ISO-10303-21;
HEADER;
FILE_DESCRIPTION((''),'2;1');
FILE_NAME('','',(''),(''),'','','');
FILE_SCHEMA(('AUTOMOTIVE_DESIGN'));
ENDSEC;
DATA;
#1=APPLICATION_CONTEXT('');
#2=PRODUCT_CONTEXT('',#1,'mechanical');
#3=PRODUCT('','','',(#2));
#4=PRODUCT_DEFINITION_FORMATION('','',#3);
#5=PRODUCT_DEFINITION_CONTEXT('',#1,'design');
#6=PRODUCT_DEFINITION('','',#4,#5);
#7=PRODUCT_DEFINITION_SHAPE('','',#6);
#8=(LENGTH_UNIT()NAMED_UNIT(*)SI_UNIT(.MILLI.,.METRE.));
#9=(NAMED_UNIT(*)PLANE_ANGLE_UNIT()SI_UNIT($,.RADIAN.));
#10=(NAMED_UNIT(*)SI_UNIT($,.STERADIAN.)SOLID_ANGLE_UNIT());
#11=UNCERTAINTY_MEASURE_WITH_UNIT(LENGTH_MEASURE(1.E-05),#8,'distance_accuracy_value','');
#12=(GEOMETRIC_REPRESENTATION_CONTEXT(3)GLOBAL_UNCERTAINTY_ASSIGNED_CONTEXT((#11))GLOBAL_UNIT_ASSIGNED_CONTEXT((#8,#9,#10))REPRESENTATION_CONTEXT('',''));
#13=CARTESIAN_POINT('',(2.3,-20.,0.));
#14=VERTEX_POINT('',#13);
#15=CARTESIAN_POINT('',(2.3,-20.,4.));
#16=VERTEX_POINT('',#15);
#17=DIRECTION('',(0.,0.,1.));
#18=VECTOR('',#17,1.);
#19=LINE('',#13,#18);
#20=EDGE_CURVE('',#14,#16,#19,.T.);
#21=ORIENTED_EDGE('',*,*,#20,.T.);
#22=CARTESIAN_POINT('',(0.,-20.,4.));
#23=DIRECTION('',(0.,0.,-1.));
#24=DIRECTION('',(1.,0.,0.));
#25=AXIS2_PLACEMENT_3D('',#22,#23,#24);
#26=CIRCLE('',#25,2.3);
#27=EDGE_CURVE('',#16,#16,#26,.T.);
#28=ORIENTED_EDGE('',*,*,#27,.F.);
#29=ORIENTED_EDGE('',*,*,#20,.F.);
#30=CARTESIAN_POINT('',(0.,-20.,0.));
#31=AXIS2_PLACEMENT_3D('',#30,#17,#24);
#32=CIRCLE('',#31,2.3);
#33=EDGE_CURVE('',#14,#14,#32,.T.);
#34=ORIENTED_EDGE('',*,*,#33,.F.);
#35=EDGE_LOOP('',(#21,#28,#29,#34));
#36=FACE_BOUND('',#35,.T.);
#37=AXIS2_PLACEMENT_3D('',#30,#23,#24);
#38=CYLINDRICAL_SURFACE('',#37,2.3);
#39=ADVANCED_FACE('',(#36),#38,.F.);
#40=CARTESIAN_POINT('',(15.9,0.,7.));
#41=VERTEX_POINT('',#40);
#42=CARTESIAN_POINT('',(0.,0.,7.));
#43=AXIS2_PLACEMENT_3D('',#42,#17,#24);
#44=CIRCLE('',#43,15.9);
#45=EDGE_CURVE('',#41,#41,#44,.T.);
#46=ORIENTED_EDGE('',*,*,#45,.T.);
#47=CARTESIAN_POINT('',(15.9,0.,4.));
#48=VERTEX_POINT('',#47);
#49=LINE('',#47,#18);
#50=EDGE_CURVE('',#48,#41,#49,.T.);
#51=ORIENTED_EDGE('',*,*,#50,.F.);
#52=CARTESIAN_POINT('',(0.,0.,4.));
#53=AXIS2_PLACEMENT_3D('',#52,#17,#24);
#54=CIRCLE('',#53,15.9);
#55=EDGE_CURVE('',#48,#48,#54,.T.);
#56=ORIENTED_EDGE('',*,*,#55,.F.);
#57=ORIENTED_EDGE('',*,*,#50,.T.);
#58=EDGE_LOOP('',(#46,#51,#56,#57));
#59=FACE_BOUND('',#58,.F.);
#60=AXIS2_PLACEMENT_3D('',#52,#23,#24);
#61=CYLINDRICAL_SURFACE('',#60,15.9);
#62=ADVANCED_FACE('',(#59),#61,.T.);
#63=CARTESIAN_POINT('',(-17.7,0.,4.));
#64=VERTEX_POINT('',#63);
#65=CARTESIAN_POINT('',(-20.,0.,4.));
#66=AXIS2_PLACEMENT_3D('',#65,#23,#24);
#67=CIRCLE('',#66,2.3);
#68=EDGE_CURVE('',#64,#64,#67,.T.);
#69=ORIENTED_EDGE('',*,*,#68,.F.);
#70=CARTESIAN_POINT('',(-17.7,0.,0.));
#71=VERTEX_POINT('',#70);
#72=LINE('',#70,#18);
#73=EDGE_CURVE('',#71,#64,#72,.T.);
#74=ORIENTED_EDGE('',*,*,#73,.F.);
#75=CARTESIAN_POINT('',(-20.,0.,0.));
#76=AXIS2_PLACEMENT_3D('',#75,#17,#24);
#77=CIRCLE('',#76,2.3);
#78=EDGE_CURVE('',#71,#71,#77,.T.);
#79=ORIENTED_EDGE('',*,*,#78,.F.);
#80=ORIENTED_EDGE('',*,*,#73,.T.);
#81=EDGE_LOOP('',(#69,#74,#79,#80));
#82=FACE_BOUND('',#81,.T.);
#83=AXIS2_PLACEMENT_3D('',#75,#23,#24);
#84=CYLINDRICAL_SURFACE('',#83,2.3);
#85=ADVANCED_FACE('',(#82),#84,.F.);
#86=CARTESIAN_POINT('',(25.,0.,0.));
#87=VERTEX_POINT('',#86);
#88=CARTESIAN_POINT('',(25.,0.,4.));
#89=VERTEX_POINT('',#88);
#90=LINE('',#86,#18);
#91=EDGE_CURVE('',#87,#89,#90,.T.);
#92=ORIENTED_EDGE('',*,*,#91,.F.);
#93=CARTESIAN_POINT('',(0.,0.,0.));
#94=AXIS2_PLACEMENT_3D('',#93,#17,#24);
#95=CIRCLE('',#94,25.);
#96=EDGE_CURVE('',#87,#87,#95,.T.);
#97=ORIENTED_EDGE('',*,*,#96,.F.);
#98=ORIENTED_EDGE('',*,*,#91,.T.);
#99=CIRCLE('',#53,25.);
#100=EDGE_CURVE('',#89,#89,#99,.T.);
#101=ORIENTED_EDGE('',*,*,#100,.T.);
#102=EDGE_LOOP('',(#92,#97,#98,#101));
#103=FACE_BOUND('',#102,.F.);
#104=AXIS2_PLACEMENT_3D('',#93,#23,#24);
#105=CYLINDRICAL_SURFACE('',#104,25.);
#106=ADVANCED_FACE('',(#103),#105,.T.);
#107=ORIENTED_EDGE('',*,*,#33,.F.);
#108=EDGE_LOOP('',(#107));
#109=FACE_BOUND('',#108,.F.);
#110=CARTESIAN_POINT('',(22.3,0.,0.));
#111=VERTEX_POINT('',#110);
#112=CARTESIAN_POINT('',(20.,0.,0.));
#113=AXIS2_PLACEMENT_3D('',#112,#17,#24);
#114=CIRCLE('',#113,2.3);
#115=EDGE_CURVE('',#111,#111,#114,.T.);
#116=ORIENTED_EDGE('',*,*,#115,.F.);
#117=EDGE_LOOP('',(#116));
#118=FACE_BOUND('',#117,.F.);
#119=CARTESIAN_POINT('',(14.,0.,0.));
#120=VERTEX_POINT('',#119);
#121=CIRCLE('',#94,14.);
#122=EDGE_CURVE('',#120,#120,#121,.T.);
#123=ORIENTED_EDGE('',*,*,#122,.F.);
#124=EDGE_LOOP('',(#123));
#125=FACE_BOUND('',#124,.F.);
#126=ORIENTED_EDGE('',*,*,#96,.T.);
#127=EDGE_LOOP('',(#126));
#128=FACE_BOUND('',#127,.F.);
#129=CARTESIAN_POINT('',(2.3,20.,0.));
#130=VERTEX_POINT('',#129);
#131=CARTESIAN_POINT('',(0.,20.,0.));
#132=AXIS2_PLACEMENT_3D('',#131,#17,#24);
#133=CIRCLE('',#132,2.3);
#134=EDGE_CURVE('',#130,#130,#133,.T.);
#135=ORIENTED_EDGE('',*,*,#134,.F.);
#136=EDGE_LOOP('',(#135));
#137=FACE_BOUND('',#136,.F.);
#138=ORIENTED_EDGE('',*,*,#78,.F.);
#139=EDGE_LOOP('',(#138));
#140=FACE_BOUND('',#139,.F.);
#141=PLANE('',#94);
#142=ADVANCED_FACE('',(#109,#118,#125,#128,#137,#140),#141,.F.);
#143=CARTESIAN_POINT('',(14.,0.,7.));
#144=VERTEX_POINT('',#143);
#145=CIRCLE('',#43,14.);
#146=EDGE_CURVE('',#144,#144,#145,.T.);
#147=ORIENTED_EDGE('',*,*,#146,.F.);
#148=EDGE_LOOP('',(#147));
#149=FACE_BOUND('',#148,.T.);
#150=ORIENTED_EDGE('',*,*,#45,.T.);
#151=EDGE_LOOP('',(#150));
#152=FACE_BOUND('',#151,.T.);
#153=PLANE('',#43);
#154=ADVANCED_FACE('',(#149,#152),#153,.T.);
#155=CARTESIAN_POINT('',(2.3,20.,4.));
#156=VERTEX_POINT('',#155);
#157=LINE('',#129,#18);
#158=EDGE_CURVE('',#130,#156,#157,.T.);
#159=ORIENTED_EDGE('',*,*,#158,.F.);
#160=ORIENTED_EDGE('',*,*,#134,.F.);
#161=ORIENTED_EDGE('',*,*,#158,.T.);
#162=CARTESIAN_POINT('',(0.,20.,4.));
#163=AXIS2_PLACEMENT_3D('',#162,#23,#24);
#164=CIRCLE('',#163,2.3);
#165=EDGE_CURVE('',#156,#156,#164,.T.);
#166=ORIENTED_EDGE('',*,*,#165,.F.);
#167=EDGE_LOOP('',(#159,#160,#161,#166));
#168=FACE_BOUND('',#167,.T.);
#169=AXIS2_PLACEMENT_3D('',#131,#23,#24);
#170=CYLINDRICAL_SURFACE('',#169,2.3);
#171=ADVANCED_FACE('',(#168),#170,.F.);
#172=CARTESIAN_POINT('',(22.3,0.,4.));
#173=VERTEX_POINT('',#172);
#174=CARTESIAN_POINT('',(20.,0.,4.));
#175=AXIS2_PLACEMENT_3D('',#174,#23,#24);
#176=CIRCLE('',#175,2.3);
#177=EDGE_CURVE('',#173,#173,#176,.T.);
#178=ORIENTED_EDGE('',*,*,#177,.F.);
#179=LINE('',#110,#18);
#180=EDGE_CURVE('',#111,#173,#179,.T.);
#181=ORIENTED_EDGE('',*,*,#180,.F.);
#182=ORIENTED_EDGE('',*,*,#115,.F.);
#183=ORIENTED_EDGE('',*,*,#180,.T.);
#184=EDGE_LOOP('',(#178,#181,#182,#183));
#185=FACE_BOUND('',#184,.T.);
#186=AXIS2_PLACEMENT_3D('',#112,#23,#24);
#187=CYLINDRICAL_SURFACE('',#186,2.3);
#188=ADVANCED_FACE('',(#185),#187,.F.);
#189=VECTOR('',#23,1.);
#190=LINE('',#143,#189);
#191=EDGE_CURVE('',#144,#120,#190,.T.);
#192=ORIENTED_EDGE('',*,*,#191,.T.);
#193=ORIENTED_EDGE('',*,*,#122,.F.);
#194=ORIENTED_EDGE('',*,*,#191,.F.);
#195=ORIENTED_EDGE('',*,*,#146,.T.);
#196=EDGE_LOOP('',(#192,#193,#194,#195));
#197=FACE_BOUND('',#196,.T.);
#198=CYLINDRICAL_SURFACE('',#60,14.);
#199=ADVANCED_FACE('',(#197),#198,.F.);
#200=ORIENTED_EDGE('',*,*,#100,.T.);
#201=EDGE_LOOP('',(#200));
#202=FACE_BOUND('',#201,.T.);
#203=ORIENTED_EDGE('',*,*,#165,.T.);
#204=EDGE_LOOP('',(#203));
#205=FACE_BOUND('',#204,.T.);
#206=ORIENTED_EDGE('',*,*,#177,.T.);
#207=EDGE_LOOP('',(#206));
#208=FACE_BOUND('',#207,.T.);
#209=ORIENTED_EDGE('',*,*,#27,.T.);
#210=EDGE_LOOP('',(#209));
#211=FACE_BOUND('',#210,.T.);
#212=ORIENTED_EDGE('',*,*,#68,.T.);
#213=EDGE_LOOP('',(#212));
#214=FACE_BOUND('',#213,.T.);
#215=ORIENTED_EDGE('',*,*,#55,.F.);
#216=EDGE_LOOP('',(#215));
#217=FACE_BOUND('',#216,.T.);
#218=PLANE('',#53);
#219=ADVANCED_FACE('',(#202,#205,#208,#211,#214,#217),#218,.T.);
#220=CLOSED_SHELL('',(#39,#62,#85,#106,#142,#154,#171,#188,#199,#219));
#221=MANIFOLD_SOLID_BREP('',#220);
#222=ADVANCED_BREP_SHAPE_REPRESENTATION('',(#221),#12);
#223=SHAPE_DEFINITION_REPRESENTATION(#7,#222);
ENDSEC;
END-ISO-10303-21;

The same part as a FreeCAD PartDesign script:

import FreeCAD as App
import Part
import Sketcher
Q = App.Units.Quantity

doc = App.newDocument("Part")
body = doc.addObject("PartDesign::Body", "Body")

sketch1 = doc.addObject("Sketcher::SketchObject", "Sketch")
body.addObject(sketch1)
sketch1.AttachmentSupport = (doc.XY_Plane, [""])
sketch1.MapMode = "FlatFace"
sketch1.addGeometry(Part.Circle(App.Vector(0, 0, 0), App.Vector(0, 0, 1), 15.9), False)
sketch1.addGeometry(Part.Circle(App.Vector(0, 0, 0), App.Vector(0, 0, 1), 14), False)
sketch1.addConstraint(Sketcher.Constraint("Coincident", 0, 3, -1, 1))
sketch1.addConstraint(Sketcher.Constraint("Coincident", 1, 3, -1, 1))
sketch1.addConstraint(Sketcher.Constraint("Diameter", 1, Q("28 mm")))
sketch1.addConstraint(Sketcher.Constraint("Diameter", 0, Q("31.8 mm")))
pad1 = doc.addObject("PartDesign::Pad", "Pad")
body.addObject(pad1)
pad1.Profile = sketch1
pad1.Length = 3
body2 = doc.addObject("PartDesign::Body", "Body001")
doc.recompute()

body.Placement = App.Placement(App.Vector(0, 0, 4), App.Rotation(App.Vector(0, 0, 1), 0))
boolean = doc.addObject("PartDesign::Boolean", "Boolean")
body2.addObject(boolean)
boolean.Type = "Fuse"
boolean.addObjects([body])
body3 = doc.addObject("PartDesign::Body", "Body002")
body3.AllowCompound = True

sketch2 = doc.addObject("Sketcher::SketchObject", "Sketch001")
body3.addObject(sketch2)
sketch2.AttachmentSupport = (doc.getObject("XY_Plane002"), [""])
sketch2.MapMode = "FlatFace"
sketch2.addGeometry(Part.Circle(App.Vector(-20, 0, 0), App.Vector(0, 0, 1), 2.3), False)
sketch2.addGeometry(Part.Circle(App.Vector(0, -20, 0), App.Vector(0, 0, 1), 2.3), False)
sketch2.addGeometry(Part.Circle(App.Vector(20, 0, 0), App.Vector(0, 0, 1), 2.3), False)
sketch2.addGeometry(Part.Circle(App.Vector(0, 20, 0), App.Vector(0, 0, 1), 2.3), False)
sketch2.addConstraint(Sketcher.Constraint("Equal", 0, 1))
sketch2.addConstraint(Sketcher.Constraint("Equal", 1, 2))
sketch2.addConstraint(Sketcher.Constraint("Equal", 2, 3))
sketch2.addConstraint(Sketcher.Constraint("Symmetric", 0, 3, 2, 3, -1, 1))
sketch2.addConstraint(Sketcher.Constraint("Symmetric", 1, 3, 3, 3, -1, 1))
sketch2.addConstraint(Sketcher.Constraint("PointOnObject", 0, 3, -1))
sketch2.addConstraint(Sketcher.Constraint("PointOnObject", 1, 3, -2))
sketch2.addConstraint(Sketcher.Constraint("Diameter", 0, Q("4.6 mm")))
sketch2.addConstraint(Sketcher.Constraint("DistanceX", 0, 3, -1, 1, Q("20 mm")))
sketch2.addConstraint(Sketcher.Constraint("DistanceY", 1, 3, -1, 1, Q("20 mm")))
pad2 = doc.addObject("PartDesign::Pad", "Pad001")
body3.addObject(pad2)
pad2.Profile = sketch2
pad2.Length = 12
body4 = doc.addObject("PartDesign::Body", "Body003")

sketch3 = doc.addObject("Sketcher::SketchObject", "Sketch002")
body4.addObject(sketch3)
sketch3.AttachmentSupport = (doc.getObject("XY_Plane003"), [""])
sketch3.MapMode = "FlatFace"
sketch3.addGeometry(Part.Circle(App.Vector(0, 0, 0), App.Vector(0, 0, 1), 25), False)
sketch3.addGeometry(Part.Circle(App.Vector(0, 0, 0), App.Vector(0, 0, 1), 14), False)
sketch3.addConstraint(Sketcher.Constraint("Coincident", 0, 3, -1, 1))
sketch3.addConstraint(Sketcher.Constraint("Coincident", 1, 3, -1, 1))
sketch3.addConstraint(Sketcher.Constraint("Diameter", 0, Q("50 mm")))
sketch3.addConstraint(Sketcher.Constraint("Diameter", 1, Q("28 mm")))
pad3 = doc.addObject("PartDesign::Pad", "Pad002")
body4.addObject(pad3)
pad3.Profile = sketch3
pad3.Length = 4
doc.recompute()

boolean2 = doc.addObject("PartDesign::Boolean", "Boolean001")
body4.addObject(boolean2)
boolean2.Type = "Cut"
boolean2.addObjects([body3])
doc.recompute()

boolean3 = doc.addObject("PartDesign::Boolean", "Boolean002")
body4.addObject(boolean3)
boolean3.Type = "Fuse"
boolean3.addObjects([body2])

doc.recompute()
